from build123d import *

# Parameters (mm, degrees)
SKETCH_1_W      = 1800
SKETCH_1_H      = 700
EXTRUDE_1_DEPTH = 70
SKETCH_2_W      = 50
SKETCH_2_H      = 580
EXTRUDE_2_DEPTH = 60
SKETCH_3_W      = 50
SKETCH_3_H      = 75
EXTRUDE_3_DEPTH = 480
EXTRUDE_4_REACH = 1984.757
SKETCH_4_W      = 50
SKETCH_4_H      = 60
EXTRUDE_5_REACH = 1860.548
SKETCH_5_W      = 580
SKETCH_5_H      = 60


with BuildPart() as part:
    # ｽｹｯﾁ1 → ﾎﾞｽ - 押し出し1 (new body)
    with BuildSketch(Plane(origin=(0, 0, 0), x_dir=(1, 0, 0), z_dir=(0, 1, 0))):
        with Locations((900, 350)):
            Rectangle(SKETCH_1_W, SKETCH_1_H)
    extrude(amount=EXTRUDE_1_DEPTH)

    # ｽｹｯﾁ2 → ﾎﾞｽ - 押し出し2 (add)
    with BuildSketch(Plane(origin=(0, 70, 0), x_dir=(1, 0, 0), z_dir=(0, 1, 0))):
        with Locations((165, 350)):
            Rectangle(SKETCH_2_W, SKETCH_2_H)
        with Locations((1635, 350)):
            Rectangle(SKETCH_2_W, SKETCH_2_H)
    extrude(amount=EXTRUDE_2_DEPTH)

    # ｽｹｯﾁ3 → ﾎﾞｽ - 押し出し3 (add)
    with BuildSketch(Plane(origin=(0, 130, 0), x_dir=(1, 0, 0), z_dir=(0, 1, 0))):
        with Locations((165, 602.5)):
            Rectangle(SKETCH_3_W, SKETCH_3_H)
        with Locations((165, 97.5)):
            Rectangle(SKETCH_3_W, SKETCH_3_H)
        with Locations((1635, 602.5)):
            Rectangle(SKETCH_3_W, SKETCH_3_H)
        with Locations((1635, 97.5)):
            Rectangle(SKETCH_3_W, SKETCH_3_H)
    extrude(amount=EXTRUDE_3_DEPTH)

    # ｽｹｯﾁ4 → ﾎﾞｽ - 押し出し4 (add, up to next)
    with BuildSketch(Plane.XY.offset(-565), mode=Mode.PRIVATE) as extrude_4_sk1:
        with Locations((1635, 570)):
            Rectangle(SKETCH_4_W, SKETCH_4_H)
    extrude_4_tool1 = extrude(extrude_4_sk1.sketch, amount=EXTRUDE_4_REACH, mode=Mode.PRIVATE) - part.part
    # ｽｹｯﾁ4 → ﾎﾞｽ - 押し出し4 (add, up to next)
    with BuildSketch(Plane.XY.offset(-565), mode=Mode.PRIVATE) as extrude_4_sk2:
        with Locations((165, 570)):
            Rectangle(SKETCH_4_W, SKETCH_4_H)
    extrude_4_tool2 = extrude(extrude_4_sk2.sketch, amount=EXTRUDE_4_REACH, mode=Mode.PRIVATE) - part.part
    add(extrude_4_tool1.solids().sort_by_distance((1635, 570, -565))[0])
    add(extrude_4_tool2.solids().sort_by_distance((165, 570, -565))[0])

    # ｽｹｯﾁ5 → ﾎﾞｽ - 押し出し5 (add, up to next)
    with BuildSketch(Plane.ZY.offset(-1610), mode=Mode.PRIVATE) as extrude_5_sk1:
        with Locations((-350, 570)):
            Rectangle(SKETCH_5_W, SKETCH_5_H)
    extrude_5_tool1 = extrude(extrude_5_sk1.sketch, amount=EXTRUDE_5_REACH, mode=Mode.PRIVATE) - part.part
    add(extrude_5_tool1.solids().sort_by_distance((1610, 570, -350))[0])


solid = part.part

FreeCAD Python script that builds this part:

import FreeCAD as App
import Part
import Sketcher
from FreeCAD import Vector
Q = App.Units.Quantity

doc = App.newDocument("Part")
params = doc.addObject("Spreadsheet::Sheet", "Params")
for row, (alias, value) in enumerate([
    ("sketch1_width", "1800 mm"),
    ("sketch1_height", "700 mm"),
    ("pad1_length", "70 mm"),
    ("sketch2_width", "50 mm"),
    ("sketch2_height", "580 mm"),
    ("pad2_length", "60 mm"),
    ("sketch3_width", "50 mm"),
    ("sketch3_height", "75 mm"),
    ("pad3_length", "480 mm"),
    ("sketch4_width", "50 mm"),
    ("sketch4_height", "60 mm"),
    ("sketch5_width", "50 mm"),
    ("sketch5_height", "60 mm"),
    ("sketch6_width", "60 mm"),
    ("sketch6_height", "580 mm"),
], start=1):
    params.set(f"A{row}", alias)
    params.set(f"B{row}", "=" + value)
    params.setAlias(f"B{row}", alias)

body = doc.addObject("PartDesign::Body", "Body")

sketch1 = body.newObject("Sketcher::SketchObject", "Sketch")
sketch1.AttachmentSupport = (doc.getObject("XZ_Plane"), [""])
sketch1.MapMode = "FlatFace"
sketch1.addGeometry([
    Part.LineSegment(Vector(0, -700, 0), Vector(0, 0, 0)),
    Part.LineSegment(Vector(0, 0, 0), Vector(1800, 0, 0)),
    Part.LineSegment(Vector(1800, 0, 0), Vector(1800, -700, 0)),
    Part.LineSegment(Vector(1800, -700, 0), Vector(0, -700, 0)),
], False)
sketch1.addConstraint([
    Sketcher.Constraint("Coincident", 0, 2, 1, 1),
    Sketcher.Constraint("Coincident", 1, 2, 2, 1),
    Sketcher.Constraint("Coincident", 2, 2, 3, 1),
    Sketcher.Constraint("Coincident", 3, 2, 0, 1),
    Sketcher.Constraint("Vertical", 0),
    Sketcher.Constraint("Horizontal", 1),
    Sketcher.Constraint("Vertical", 2),
    Sketcher.Constraint("Horizontal", 3),
    Sketcher.Constraint("Coincident", 0, 2, -1, 1),
    Sketcher.Constraint("DistanceX", 1, 1, 1, 2, Q("1800 mm")),
    Sketcher.Constraint("DistanceY", 0, 1, 0, 2, Q("700 mm")),
])
sketch1.setExpression("Constraints[9]", "Params.sketch1_width")
sketch1.setExpression("Constraints[10]", "Params.sketch1_height")
pad1 = body.newObject("PartDesign::Pad", "Pad")
pad1.Profile = sketch1
pad1.setExpression("Length", "Params.pad1_length")
pad1.Reversed = True

sketch2 = body.newObject("Sketcher::SketchObject", "Sketch001")
sketch2.AttachmentSupport = (doc.getObject("XZ_Plane"), [""])
sketch2.MapMode = "FlatFace"
sketch2.AttachmentOffset = App.Placement(Vector(0, 0, -70), App.Rotation())
sketch2.addGeometry([
    Part.LineSegment(Vector(140, -640, 0), Vector(140, -60, 0)),
    Part.LineSegment(Vector(140, -60, 0), Vector(190, -60, 0)),
    Part.LineSegment(Vector(190, -60, 0), Vector(190, -640, 0)),
    Part.LineSegment(Vector(190, -640, 0), Vector(140, -640, 0)),
    Part.LineSegment(Vector(1610, -640, 0), Vector(1610, -60, 0)),
    Part.LineSegment(Vector(1610, -60, 0), Vector(1660, -60, 0)),
    Part.LineSegment(Vector(1660, -60, 0), Vector(1660, -640, 0)),
    Part.LineSegment(Vector(1660, -640, 0), Vector(1610, -640, 0)),
], False)
sketch2.addConstraint([
    Sketcher.Constraint("Coincident", 0, 2, 1, 1),
    Sketcher.Constraint("Coincident", 1, 2, 2, 1),
    Sketcher.Constraint("Coincident", 2, 2, 3, 1),
    Sketcher.Constraint("Coincident", 3, 2, 0, 1),
    Sketcher.Constraint("Coincident", 4, 2, 5, 1),
    Sketcher.Constraint("Coincident", 5, 2, 6, 1),
    Sketcher.Constraint("Coincident", 6, 2, 7, 1),
    Sketcher.Constraint("Coincident", 7, 2, 4, 1),
    Sketcher.Constraint("Vertical", 0),
    Sketcher.Constraint("Horizontal", 1),
    Sketcher.Constraint("Vertical", 2),
    Sketcher.Constraint("Horizontal", 3),
    Sketcher.Constraint("Vertical", 4),
    Sketcher.Constraint("Horizontal", 5),
    Sketcher.Constraint("Vertical", 6),
    Sketcher.Constraint("Horizontal", 7),
    Sketcher.Constraint("Horizontal", 1, 2, 4, 2),
    Sketcher.Constraint("Horizontal", 3, 2, 6, 2),
    Sketcher.Constraint("Equal", 3, 5),
    Sketcher.Constraint("DistanceX", 1, 1, 1, 2, Q("50 mm")),
    Sketcher.Constraint("DistanceY", 0, 1, 0, 2, Q("580 mm")),
    Sketcher.Constraint("DistanceX", -1, 1, 0, 2, Q("140 mm")),
    Sketcher.Constraint("DistanceY", 0, 2, -1, 1, Q("60 mm")),
    Sketcher.Constraint("DistanceX", -1, 1, 4, 2, Q("1610 mm")),
])
sketch2.setExpression("Constraints[19]", "Params.sketch2_width")
sketch2.setExpression("Constraints[20]", "Params.sketch2_height")
pad2 = body.newObject("PartDesign::Pad", "Pad001")
pad2.Profile = sketch2
pad2.setExpression("Length", "Params.pad2_length")
pad2.Reversed = True

sketch3 = body.newObject("Sketcher::SketchObject", "Sketch002")
sketch3.AttachmentSupport = (doc.getObject("XZ_Plane"), [""])
sketch3.MapMode = "FlatFace"
sketch3.AttachmentOffset = App.Placement(Vector(0, 0, -130), App.Rotation())
sketch3.addGeometry([
    Part.LineSegment(Vector(140, -640, 0), Vector(140, -565, 0)),
    Part.LineSegment(Vector(140, -565, 0), Vector(190, -565, 0)),
    Part.LineSegment(Vector(190, -565, 0), Vector(190, -640, 0)),
    Part.LineSegment(Vector(190, -640, 0), Vector(140, -640, 0)),
    Part.LineSegment(Vector(140, -135, 0), Vector(140, -60, 0)),
    Part.LineSegment(Vector(140, -60, 0), Vector(190, -60, 0)),
    Part.LineSegment(Vector(190, -60, 0), Vector(190, -135, 0)),
    Part.LineSegment(Vector(190, -135, 0), Vector(140, -135, 0)),
    Part.LineSegment(Vector(1610, -640, 0), Vector(1610, -565, 0)),
    Part.LineSegment(Vector(1610, -565, 0), Vector(1660, -565, 0)),
    Part.LineSegment(Vector(1660, -565, 0), Vector(1660, -640, 0)),
    Part.LineSegment(Vector(1660, -640, 0), Vector(1610, -640, 0)),
    Part.LineSegment(Vector(1610, -135, 0), Vector(1610, -60, 0)),
    Part.LineSegment(Vector(1610, -60, 0), Vector(1660, -60, 0)),
    Part.LineSegment(Vector(1660, -60, 0), Vector(1660, -135, 0)),
    Part.LineSegment(Vector(1660, -135, 0), Vector(1610, -135, 0)),
], False)
sketch3.addConstraint([
    Sketcher.Constraint("Coincident", 0, 2, 1, 1),
    Sketcher.Constraint("Coincident", 1, 2, 2, 1),
    Sketcher.Constraint("Coincident", 2, 2, 3, 1),
    Sketcher.Constraint("Coincident", 3, 2, 0, 1),
    Sketcher.Constraint("Coincident", 4, 2, 5, 1),
    Sketcher.Constraint("Coincident", 5, 2, 6, 1),
    Sketcher.Constraint("Coincident", 6, 2, 7, 1),
    Sketcher.Constraint("Coincident", 7, 2, 4, 1),
    Sketcher.Constraint("Coincident", 8, 2, 9, 1),
    Sketcher.Constraint("Coincident", 9, 2, 10, 1),
    Sketcher.Constraint("Coincident", 10, 2, 11, 1),
    Sketcher.Constraint("Coincident", 11, 2, 8, 1),
    Sketcher.Constraint("Coincident", 12, 2, 13, 1),
    Sketcher.Constraint("Coincident", 13, 2, 14, 1),
    Sketcher.Constraint("Coincident", 14, 2, 15, 1),
    Sketcher.Constraint("Coincident", 15, 2, 12, 1),
    Sketcher.Constraint("Vertical", 0),
    Sketcher.Constraint("Horizontal", 1),
    Sketcher.Constraint("Vertical", 2),
    Sketcher.Constraint("Horizontal", 3),
    Sketcher.Constraint("Vertical", 4),
    Sketcher.Constraint("Horizontal", 5),
    Sketcher.Constraint("Vertical", 6),
    Sketcher.Constraint("Horizontal", 7),
    Sketcher.Constraint("Vertical", 8),
    Sketcher.Constraint("Horizontal", 9),
    Sketcher.Constraint("Vertical", 10),
    Sketcher.Constraint("Horizontal", 11),
    Sketcher.Constraint("Vertical", 12),
    Sketcher.Constraint("Horizontal", 13),
    Sketcher.Constraint("Vertical", 14),
    Sketcher.Constraint("Horizontal", 15),
    Sketcher.Constraint("Horizontal", 1, 2, 8, 2),
    Sketcher.Constraint("Horizontal", 3, 2, 10, 2),
    Sketcher.Constraint("Horizontal", 5, 2, 12, 2),
    Sketcher.Constraint("Horizontal", 7, 2, 14, 2),
    Sketcher.Constraint("Vertical", 3, 2, 4, 2),
    Sketcher.Constraint("Vertical", 2, 2, 5, 2),
    Sketcher.Constraint("Vertical", 11, 2, 12, 2),
    Sketcher.Constraint("Vertical", 10, 2, 13, 2),
    Sketcher.Constraint("Equal", 7, 9),
    Sketcher.Constraint("Equal", 2, 4),
    Sketcher.Constraint("DistanceX", 1, 1, 1, 2, Q("50 mm")),
    Sketcher.Constraint("DistanceY", 0, 1, 0, 2, Q("75 mm")),
    Sketcher.Constraint("DistanceX", -1, 1, 0, 2, Q("140 mm")),
    Sketcher.Constraint("DistanceY", 0, 2, -1, 1, Q("565 mm")),
    Sketcher.Constraint("DistanceY", 4, 2, -1, 1, Q("60 mm")),
    Sketcher.Constraint("DistanceX", -1, 1, 8, 2, Q("1610 mm")),
])
sketch3.setExpression("Constraints[42]", "Params.sketch3_width")
sketch3.setExpression("Constraints[43]", "Params.sketch3_height")
pad3 = body.newObject("PartDesign::Pad", "Pad002")
pad3.Profile = sketch3
pad3.setExpression("Length", "Params.pad3_length")
pad3.Reversed = True

sketch4 = body.newObject("Sketcher::SketchObject", "Sketch003")
sketch4.AttachmentSupport = (doc.getObject("XY_Plane"), [""])
sketch4.MapMode = "FlatFace"
sketch4.AttachmentOffset = App.Placement(Vector(0, 0, -565), App.Rotation())
sketch4.addGeometry([
    Part.LineSegment(Vector(1610, 600, 0), Vector(1610, 540, 0)),
    Part.LineSegment(Vector(1610, 540, 0), Vector(1660, 540, 0)),
    Part.LineSegment(Vector(1660, 540, 0), Vector(1660, 600, 0)),
    Part.LineSegment(Vector(1660, 600, 0), Vector(1610, 600, 0)),
], False)
sketch4.addConstraint([
    Sketcher.Constraint("Coincident", 0, 2, 1, 1),
    Sketcher.Constraint("Coincident", 1, 2, 2, 1),
    Sketcher.Constraint("Coincident", 2, 2, 3, 1),
    Sketcher.Constraint("Coincident", 3, 2, 0, 1),
    Sketcher.Constraint("Vertical", 0),
    Sketcher.Constraint("Horizontal", 1),
    Sketcher.Constraint("Vertical", 2),
    Sketcher.Constraint("Horizontal", 3),
    Sketcher.Constraint("DistanceX", 1, 1, 1, 2, Q("50 mm")),
    Sketcher.Constraint("DistanceY", 0, 2, 0, 1, Q("60 mm")),
    Sketcher.Constraint("DistanceX", -1, 1, 0, 2, Q("1610 mm")),
    Sketcher.Constraint("DistanceY", -1, 1, 0, 2, Q("540 mm")),
])
sketch4.setExpression("Constraints[8]", "Params.sketch4_width")
sketch4.setExpression("Constraints[9]", "Params.sketch4_height")
pad4 = body.newObject("PartDesign::Pad", "Pad003")
pad4.Profile = sketch4
pad4.Type = "UpToFirst"

sketch5 = body.newObject("Sketcher::SketchObject", "Sketch004")
sketch5.AttachmentSupport = (doc.getObject("XY_Plane"), [""])
sketch5.MapMode = "FlatFace"
sketch5.AttachmentOffset = App.Placement(Vector(0, 0, -565), App.Rotation())
sketch5.addGeometry([
    Part.LineSegment(Vector(140, 600, 0), Vector(140, 540, 0)),
    Part.LineSegment(Vector(140, 540, 0), Vector(190, 540, 0)),
    Part.LineSegment(Vector(190, 540, 0), Vector(190, 600, 0)),
    Part.LineSegment(Vector(190, 600, 0), Vector(140, 600, 0)),
], False)
sketch5.addConstraint([
    Sketcher.Constraint("Coincident", 0, 2, 1, 1),
    Sketcher.Constraint("Coincident", 1, 2, 2, 1),
    Sketcher.Constraint("Coincident", 2, 2, 3, 1),
    Sketcher.Constraint("Coincident", 3, 2, 0, 1),
    Sketcher.Constraint("Vertical", 0),
    Sketcher.Constraint("Horizontal", 1),
    Sketcher.Constraint("Vertical", 2),
    Sketcher.Constraint("Horizontal", 3),
    Sketcher.Constraint("DistanceX", 1, 1, 1, 2, Q("50 mm")),
    Sketcher.Constraint("DistanceY", 0, 2, 0, 1, Q("60 mm")),
    Sketcher.Constraint("DistanceX", -1, 1, 0, 2, Q("140 mm")),
    Sketcher.Constraint("DistanceY", -1, 1, 0, 2, Q("540 mm")),
])
sketch5.setExpression("Constraints[8]", "Params.sketch5_width")
sketch5.setExpression("Constraints[9]", "Params.sketch5_height")
pad5 = body.newObject("PartDesign::Pad", "Pad004")
pad5.Profile = sketch5
pad5.Type = "UpToFirst"

sketch6 = body.newObject("Sketcher::SketchObject", "Sketch005")
sketch6.AttachmentSupport = (doc.getObject("YZ_Plane"), [""])
sketch6.MapMode = "FlatFace"
sketch6.AttachmentOffset = App.Placement(Vector(0, 0, 1610), App.Rotation())
sketch6.addGeometry([
    Part.LineSegment(Vector(600, -640, 0), Vector(540, -640, 0)),
    Part.LineSegment(Vector(540, -640, 0), Vector(540, -60, 0)),
    Part.LineSegment(Vector(540, -60, 0), Vector(600, -60, 0)),
    Part.LineSegment(Vector(600, -60, 0), Vector(600, -640, 0)),
], False)
sketch6.addConstraint([
    Sketcher.Constraint("Coincident", 0, 2, 1, 1),
    Sketcher.Constraint("Coincident", 1, 2, 2, 1),
    Sketcher.Constraint("Coincident", 2, 2, 3, 1),
    Sketcher.Constraint("Coincident", 3, 2, 0, 1),
    Sketcher.Constraint("Horizontal", 0),
    Sketcher.Constraint("Vertical", 1),
    Sketcher.Constraint("Horizontal", 2),
    Sketcher.Constraint("Vertical", 3),
    Sketcher.Constraint("DistanceX", 0, 2, 0, 1, Q("60 mm")),
    Sketcher.Constraint("DistanceY", 1, 1, 1, 2, Q("580 mm")),
    Sketcher.Constraint("DistanceX", -1, 1, 0, 2, Q("540 mm")),
    Sketcher.Constraint("DistanceY", 0, 2, -1, 1, Q("640 mm")),
])
sketch6.setExpression("Constraints[8]", "Params.sketch6_width")
sketch6.setExpression("Constraints[9]", "Params.sketch6_height")
pad6 = body.newObject("PartDesign::Pad", "Pad005")
pad6.Profile = sketch6
pad6.Type = "UpToFirst"
pad6.Reversed = True

doc.recompute()
